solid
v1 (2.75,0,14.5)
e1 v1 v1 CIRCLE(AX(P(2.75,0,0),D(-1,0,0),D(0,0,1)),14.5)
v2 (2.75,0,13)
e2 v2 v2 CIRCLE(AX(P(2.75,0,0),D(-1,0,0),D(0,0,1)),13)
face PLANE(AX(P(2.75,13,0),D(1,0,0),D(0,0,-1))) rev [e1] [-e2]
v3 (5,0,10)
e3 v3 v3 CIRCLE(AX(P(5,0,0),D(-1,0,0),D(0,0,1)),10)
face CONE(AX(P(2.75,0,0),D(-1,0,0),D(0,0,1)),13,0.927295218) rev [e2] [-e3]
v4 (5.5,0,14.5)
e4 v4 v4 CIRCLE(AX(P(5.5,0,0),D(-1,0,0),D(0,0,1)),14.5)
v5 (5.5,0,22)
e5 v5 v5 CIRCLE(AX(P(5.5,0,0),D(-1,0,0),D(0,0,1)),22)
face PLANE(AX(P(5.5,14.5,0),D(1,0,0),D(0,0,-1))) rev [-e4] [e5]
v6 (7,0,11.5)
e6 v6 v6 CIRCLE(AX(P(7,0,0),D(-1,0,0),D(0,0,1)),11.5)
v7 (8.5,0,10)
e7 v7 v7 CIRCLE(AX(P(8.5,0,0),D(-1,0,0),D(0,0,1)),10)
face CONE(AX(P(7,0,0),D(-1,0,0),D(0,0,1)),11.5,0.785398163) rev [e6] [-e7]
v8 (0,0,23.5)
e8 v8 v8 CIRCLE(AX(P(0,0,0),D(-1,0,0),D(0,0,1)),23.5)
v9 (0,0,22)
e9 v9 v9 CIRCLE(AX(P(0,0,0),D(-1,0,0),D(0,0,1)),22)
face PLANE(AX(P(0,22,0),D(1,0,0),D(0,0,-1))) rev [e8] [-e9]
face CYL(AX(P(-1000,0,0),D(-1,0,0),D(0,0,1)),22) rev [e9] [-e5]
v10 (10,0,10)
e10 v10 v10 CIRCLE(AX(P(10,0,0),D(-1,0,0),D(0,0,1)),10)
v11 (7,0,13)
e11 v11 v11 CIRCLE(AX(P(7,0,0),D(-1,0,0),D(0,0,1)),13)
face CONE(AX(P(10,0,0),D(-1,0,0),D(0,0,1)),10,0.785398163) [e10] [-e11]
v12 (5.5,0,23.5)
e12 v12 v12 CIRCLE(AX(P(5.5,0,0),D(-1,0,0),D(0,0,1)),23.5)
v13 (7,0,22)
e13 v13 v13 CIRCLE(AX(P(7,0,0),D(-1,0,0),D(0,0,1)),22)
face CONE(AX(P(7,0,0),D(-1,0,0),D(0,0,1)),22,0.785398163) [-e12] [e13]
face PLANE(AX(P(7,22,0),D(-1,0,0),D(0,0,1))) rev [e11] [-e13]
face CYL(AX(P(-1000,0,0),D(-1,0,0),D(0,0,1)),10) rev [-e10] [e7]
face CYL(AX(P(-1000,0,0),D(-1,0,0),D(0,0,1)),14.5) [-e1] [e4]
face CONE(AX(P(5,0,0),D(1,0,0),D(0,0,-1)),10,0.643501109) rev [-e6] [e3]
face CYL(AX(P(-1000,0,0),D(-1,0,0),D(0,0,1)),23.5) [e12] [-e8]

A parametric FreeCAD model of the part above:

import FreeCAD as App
import Part
import Sketcher
from FreeCAD import Vector
Q = App.Units.Quantity

doc = App.newDocument("Part")
body = doc.addObject("PartDesign::Body", "Body")

# Sketch on XY plane
sketch1 = body.newObject("Sketcher::SketchObject", "Sketch")
sketch1.AttachmentSupport = (doc.getObject("XY_Plane"), [""])
sketch1.MapMode = "FlatFace"
sketch1.addGeometry([
    Part.LineSegment(Vector(0, 23.5, 0), Vector(0, 22, 0)),  # 0
    Part.LineSegment(Vector(0, 22, 0), Vector(5.5, 22, 0)),  # 1
    Part.LineSegment(Vector(5.5, 22, 0), Vector(5.5, 14.5, 0)),  # 2
    Part.LineSegment(Vector(5.5, 14.5, 0), Vector(2.8, 14.5, 0)),  # 3
    Part.LineSegment(Vector(2.8, 14.5, 0), Vector(2.8, 13, 0)),  # 4
    Part.LineSegment(Vector(2.8, 13, 0), Vector(5, 10, 0)),  # 5
    Part.LineSegment(Vector(5, 10, 0), Vector(7, 11.5, 0)),  # 6
    Part.LineSegment(Vector(7, 11.5, 0), Vector(8.5, 10, 0)),  # 7
    Part.LineSegment(Vector(8.5, 10, 0), Vector(10, 10, 0)),  # 8
    Part.LineSegment(Vector(10, 10, 0), Vector(7, 13, 0)),  # 9
    Part.LineSegment(Vector(7, 13, 0), Vector(7, 22, 0)),  # 10
    Part.LineSegment(Vector(7, 22, 0), Vector(5.5, 23.5, 0)),  # 11
    Part.LineSegment(Vector(5.5, 23.5, 0), Vector(0, 23.5, 0)),  # 12
], False)
sketch1.addConstraint([
    Sketcher.Constraint("Coincident", 0, 2, 1, 1),
    Sketcher.Constraint("Coincident", 1, 2, 2, 1),
    Sketcher.Constraint("Coincident", 2, 2, 3, 1),
    Sketcher.Constraint("Coincident", 3, 2, 4, 1),
    Sketcher.Constraint("Coincident", 4, 2, 5, 1),
    Sketcher.Constraint("Coincident", 5, 2, 6, 1),
    Sketcher.Constraint("Coincident", 6, 2, 7, 1),
    Sketcher.Constraint("Coincident", 7, 2, 8, 1),
    Sketcher.Constraint("Coincident", 8, 2, 9, 1),
    Sketcher.Constraint("Coincident", 9, 2, 10, 1),
    Sketcher.Constraint("Coincident", 10, 2, 11, 1),
    Sketcher.Constraint("Coincident", 11, 2, 12, 1),
    Sketcher.Constraint("Coincident", 12, 2, 0, 1),
    Sketcher.Constraint("Vertical", 0),
    Sketcher.Constraint("Horizontal", 1),
    Sketcher.Constraint("Vertical", 2),
    Sketcher.Constraint("Horizontal", 3),
    Sketcher.Constraint("Vertical", 4),
    Sketcher.Constraint("Horizontal", 8),
    Sketcher.Constraint("Vertical", 10),
    Sketcher.Constraint("Horizontal", 12),
    Sketcher.Constraint("PointOnObject", 0, 2, -2),
    Sketcher.Constraint("Perpendicular", 5, 6),
    Sketcher.Constraint("Parallel", 7, 9),
    Sketcher.Constraint("Parallel", 9, 11),
    Sketcher.Constraint("Horizontal", 5, 2, 7, 2),
    Sketcher.Constraint("Horizontal", 4, 2, 9, 2),
    Sketcher.Constraint("Horizontal", 1, 2, 10, 2),
    Sketcher.Constraint("Vertical", 6, 2, 9, 2),
    Sketcher.Constraint("Vertical", 2, 2, 11, 2),
    Sketcher.Constraint("Equal", 8, 0),
    Sketcher.Constraint("Equal", 0, 4),
    Sketcher.Constraint("Equal", 7, 11),
    Sketcher.Constraint("DistanceY", 10, 1, 10, 2, 9.0),
    Sketcher.Constraint("Angle", 7, Q("-45 deg")),
    Sketcher.Constraint("DistanceX", 1, 1, 1, 2, 5.5),
    Sketcher.Constraint("DistanceX", 8, 1, 8, 2, 1.5),
    Sketcher.Constraint("DistanceY", -1, 1, 0, 2, 22.0),
    Sketcher.Constraint("DistanceX", -1, 1, 5, 2, 5.0),
])
revolution = body.newObject("PartDesign::Revolution", "Revolution")
revolution.Profile = sketch1
revolution.ReferenceAxis = (sketch1, ["H_Axis"])
revolution.Angle = 360

doc.recompute()
